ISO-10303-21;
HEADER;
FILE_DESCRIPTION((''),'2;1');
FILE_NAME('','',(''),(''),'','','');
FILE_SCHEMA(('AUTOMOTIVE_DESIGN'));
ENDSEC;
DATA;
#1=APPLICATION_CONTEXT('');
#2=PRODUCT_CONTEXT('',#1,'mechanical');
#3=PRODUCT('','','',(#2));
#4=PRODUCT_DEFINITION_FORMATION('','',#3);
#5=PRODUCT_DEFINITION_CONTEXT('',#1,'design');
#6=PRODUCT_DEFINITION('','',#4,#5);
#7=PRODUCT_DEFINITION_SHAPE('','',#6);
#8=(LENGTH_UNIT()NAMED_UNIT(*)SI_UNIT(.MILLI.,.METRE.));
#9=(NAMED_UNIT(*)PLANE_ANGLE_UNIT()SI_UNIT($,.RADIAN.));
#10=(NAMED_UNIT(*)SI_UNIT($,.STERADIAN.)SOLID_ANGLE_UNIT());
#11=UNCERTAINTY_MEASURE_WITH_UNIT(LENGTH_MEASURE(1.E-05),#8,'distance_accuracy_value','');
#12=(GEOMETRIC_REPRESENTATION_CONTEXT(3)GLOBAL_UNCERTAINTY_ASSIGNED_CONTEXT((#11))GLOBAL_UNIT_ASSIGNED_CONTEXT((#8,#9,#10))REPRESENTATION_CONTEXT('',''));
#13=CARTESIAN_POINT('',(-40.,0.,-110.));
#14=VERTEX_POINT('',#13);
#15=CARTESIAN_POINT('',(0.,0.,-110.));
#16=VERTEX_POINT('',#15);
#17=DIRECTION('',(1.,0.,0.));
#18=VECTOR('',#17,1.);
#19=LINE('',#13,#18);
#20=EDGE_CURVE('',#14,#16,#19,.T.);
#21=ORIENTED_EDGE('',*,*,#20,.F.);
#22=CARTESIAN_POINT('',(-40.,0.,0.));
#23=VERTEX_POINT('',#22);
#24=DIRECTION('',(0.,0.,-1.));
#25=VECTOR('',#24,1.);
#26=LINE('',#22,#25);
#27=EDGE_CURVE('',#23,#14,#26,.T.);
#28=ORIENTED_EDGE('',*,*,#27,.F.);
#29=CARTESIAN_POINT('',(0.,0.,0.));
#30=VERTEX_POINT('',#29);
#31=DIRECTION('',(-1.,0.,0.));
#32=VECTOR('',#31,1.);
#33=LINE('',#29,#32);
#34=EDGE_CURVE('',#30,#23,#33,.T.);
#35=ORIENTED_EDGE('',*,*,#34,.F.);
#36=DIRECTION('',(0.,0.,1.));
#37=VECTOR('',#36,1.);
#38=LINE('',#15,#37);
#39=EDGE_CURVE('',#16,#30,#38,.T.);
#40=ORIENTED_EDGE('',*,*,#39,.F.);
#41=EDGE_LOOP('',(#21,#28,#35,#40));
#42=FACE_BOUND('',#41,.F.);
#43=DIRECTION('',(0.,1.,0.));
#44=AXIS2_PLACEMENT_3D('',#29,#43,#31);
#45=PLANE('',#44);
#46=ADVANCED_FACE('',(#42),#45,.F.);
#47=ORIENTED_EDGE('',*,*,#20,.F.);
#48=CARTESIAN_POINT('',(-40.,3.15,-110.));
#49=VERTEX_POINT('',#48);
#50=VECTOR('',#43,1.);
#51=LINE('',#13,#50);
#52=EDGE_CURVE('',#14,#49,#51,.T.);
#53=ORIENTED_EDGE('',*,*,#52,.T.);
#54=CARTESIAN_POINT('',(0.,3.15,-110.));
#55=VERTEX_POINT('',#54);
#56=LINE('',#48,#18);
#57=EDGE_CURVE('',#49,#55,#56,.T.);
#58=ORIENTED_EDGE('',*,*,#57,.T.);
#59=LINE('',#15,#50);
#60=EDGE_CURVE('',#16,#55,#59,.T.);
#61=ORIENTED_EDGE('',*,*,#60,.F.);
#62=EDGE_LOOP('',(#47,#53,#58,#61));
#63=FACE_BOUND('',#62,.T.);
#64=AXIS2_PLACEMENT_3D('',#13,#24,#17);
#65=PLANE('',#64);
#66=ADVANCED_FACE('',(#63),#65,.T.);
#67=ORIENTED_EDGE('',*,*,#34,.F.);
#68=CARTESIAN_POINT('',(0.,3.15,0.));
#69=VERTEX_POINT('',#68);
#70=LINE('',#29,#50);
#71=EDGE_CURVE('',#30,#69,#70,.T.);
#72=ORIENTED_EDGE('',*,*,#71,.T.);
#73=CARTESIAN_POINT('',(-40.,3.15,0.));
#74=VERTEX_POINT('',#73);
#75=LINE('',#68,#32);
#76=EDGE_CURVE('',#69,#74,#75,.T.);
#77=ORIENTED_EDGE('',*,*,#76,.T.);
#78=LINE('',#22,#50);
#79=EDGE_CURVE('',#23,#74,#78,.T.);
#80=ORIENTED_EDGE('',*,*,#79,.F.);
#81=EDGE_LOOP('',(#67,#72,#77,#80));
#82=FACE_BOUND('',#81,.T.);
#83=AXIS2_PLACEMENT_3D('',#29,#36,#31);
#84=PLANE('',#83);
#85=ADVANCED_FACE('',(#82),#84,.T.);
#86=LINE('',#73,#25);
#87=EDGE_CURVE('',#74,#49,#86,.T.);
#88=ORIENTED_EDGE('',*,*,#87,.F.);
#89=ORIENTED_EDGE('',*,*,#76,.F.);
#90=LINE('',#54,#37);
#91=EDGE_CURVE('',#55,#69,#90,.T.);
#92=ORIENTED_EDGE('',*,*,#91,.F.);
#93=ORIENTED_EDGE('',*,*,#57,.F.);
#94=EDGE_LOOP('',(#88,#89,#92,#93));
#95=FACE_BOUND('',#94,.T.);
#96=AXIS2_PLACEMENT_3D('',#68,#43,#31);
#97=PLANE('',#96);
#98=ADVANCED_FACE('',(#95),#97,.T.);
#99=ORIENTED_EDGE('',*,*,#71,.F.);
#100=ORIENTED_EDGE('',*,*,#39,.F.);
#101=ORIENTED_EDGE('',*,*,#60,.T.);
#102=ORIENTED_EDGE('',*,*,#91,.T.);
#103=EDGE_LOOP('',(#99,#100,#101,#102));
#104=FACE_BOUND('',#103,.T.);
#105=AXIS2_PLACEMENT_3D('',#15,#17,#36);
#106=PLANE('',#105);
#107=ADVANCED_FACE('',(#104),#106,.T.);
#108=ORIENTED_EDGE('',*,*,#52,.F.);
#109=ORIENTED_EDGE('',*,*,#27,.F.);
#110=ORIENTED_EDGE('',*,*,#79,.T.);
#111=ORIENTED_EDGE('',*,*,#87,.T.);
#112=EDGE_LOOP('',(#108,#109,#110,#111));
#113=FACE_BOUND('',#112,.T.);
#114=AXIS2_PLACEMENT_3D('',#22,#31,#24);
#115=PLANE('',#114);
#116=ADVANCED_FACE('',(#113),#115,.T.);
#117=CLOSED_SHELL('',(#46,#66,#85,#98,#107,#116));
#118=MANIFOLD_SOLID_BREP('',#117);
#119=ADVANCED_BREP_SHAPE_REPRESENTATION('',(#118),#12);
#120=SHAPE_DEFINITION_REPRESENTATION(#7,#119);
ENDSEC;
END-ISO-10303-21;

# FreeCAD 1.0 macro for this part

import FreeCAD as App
import Part
import Sketcher

V = App.Vector

doc = App.newDocument("Part")
body = doc.addObject("PartDesign::Body", "Body")

# Sketch on XZ plane
sketch1 = body.newObject("Sketcher::SketchObject", "Sketch")
sketch1.AttachmentSupport = (doc.getObject("XZ_Plane"), [""])
sketch1.MapMode = "FlatFace"
sketch1.addGeometry(Part.LineSegment(V(-40, 0, 0), V(0, 0, 0)), False)
sketch1.addGeometry(Part.LineSegment(V(0, 0, 0), V(0, -110, 0)), False)
sketch1.addGeometry(Part.LineSegment(V(0, -110, 0), V(-40, -110, 0)), False)
sketch1.addGeometry(Part.LineSegment(V(-40, -110, 0), V(-40, 0, 0)), False)
sketch1.addConstraint(Sketcher.Constraint("Coincident", 0, 2, 1, 1))
sketch1.addConstraint(Sketcher.Constraint("Coincident", 1, 2, 2, 1))
sketch1.addConstraint(Sketcher.Constraint("Coincident", 2, 2, 3, 1))
sketch1.addConstraint(Sketcher.Constraint("Coincident", 3, 2, 0, 1))
sketch1.addConstraint(Sketcher.Constraint("Horizontal", 0))
sketch1.addConstraint(Sketcher.Constraint("Vertical", 1))
sketch1.addConstraint(Sketcher.Constraint("Horizontal", 2))
sketch1.addConstraint(Sketcher.Constraint("Vertical", 3))
sketch1.addConstraint(Sketcher.Constraint("Coincident", 0, 2, -1, 1))
sketch1.addConstraint(Sketcher.Constraint("DistanceX", 0, 1, 0, 2, 40.0))
sketch1.addConstraint(Sketcher.Constraint("DistanceY", 1, 2, 1, 1, 110.0))
pad1 = body.newObject("PartDesign::Pad", "Pad")
pad1.Profile = sketch1
pad1.Length = 3.15
pad1.Reversed = True

doc.recompute()
